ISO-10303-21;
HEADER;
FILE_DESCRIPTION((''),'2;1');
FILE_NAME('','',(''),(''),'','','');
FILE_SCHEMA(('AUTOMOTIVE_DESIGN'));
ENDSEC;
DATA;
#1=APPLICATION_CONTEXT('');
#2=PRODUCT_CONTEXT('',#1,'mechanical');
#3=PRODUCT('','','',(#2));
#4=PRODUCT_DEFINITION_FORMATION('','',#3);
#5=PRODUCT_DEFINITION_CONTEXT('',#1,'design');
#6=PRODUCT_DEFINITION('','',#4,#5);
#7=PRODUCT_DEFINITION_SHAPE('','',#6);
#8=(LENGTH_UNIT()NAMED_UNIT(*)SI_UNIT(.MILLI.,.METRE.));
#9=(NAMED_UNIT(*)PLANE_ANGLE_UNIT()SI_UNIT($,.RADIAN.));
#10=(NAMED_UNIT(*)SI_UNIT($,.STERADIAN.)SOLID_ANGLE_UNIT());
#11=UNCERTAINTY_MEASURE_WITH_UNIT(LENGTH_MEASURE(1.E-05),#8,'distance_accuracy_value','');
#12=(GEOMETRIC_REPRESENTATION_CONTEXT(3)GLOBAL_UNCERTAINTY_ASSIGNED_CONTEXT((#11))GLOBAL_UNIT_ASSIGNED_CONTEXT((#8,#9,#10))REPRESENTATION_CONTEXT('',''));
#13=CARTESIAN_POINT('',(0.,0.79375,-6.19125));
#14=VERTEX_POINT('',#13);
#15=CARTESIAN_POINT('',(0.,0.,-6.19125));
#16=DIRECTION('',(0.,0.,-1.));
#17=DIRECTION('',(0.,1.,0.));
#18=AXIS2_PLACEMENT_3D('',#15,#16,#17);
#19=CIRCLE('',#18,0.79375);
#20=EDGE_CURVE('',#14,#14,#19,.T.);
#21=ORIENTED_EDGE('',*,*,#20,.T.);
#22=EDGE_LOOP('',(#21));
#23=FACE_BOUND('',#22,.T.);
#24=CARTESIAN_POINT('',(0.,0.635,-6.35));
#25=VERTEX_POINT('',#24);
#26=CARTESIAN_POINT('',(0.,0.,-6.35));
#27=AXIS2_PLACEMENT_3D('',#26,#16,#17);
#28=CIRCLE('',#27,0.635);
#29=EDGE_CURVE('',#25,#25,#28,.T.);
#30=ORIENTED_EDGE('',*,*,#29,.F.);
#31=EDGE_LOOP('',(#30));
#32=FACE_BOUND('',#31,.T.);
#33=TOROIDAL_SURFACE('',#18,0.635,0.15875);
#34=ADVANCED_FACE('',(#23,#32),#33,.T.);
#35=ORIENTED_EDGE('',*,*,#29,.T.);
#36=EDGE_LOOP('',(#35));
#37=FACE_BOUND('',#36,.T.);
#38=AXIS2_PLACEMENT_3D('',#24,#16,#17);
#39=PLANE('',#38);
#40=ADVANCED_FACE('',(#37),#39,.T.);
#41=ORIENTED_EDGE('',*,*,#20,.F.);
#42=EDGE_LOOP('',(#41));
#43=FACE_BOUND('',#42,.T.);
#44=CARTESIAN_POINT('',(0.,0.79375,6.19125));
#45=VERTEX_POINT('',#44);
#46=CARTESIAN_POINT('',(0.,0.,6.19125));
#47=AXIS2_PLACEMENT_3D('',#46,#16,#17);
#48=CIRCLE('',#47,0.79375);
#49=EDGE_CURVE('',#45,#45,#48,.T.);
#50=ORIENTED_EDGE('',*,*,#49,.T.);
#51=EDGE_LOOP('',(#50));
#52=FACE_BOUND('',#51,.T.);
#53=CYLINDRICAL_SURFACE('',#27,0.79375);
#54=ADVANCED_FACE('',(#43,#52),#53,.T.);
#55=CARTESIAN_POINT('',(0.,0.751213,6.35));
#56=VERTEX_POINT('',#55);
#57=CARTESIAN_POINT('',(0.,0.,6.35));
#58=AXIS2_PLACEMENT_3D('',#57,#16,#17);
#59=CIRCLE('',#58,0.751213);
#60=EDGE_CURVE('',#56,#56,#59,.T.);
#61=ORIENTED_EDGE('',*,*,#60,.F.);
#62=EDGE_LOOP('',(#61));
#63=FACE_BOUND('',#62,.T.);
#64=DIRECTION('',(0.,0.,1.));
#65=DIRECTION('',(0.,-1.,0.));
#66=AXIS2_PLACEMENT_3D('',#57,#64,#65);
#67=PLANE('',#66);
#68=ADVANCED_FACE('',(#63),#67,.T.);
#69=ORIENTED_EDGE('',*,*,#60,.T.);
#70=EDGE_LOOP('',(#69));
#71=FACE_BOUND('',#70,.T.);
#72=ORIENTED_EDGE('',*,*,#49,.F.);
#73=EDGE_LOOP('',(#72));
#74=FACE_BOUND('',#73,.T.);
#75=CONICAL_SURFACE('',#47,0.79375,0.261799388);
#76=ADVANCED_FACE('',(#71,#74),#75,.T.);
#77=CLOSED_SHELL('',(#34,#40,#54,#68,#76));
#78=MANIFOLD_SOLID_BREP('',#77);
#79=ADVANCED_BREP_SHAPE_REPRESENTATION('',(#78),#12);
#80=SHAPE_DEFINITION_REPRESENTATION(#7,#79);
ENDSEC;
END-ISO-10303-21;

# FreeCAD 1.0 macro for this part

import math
import FreeCAD as App
import Part
import Sketcher

V = App.Vector
Q = App.Units.Quantity

doc = App.newDocument("Part")
body = doc.addObject("PartDesign::Body", "Body")

sketch1 = body.newObject("Sketcher::SketchObject", "Sketch")
sketch1.AttachmentSupport = (doc.getObject("YZ_Plane"), [""])
sketch1.MapMode = "FlatFace"
sketch1.addGeometry([
    Part.LineSegment(V(0.75, 6.35, 0), V(0, 6.35, 0)),
    Part.LineSegment(V(0, 6.35, 0), V(0, -6.35, 0)),
    Part.LineSegment(V(0, -6.35, 0), V(0.64, -6.35, 0)),
    Part.ArcOfCircle(Part.Circle(V(0.64, -6.19, 0), V(0, 0, 1), 0.16), math.radians(-90), math.radians(0)),
    Part.LineSegment(V(0.79, -6.19, 0), V(0.79, 6.19, 0)),
    Part.LineSegment(V(0.79, 6.19, 0), V(0.75, 6.35, 0)),
], False)
sketch1.addConstraint([
    Sketcher.Constraint("Coincident", 0, 2, 1, 1),
    Sketcher.Constraint("Coincident", 1, 2, 2, 1),
    Sketcher.Constraint("Tangent", 2, 2, 3, 1),
    Sketcher.Constraint("Tangent", 3, 2, 4, 1),
    Sketcher.Constraint("Coincident", 4, 2, 5, 1),
    Sketcher.Constraint("Coincident", 5, 2, 0, 1),
    Sketcher.Constraint("Horizontal", 0),
    Sketcher.Constraint("Vertical", 1),
    Sketcher.Constraint("Horizontal", 2),
    Sketcher.Constraint("Vertical", 4),
    Sketcher.Constraint("Symmetric", 0, 2, 1, 2, -1, 1),
    Sketcher.Constraint("DistanceY", 1, 2, 1, 1, Q("0.5 in")),
    Sketcher.Constraint("Angle", 5, Q("105 deg")),
    Sketcher.Constraint("DistanceX", 2, 1, 2, 2, Q("0.025 in")),
    Sketcher.Constraint("DistanceY", 4, 1, 4, 2, Q("0.4875 in")),
    Sketcher.Constraint("DistanceX", -1, 1, 3, 2, Q("0.03125 in")),
])
revolution = body.newObject("PartDesign::Revolution", "Revolution")
revolution.Profile = sketch1
revolution.ReferenceAxis = (sketch1, ["V_Axis"])
revolution.Angle = 360

doc.recompute()
